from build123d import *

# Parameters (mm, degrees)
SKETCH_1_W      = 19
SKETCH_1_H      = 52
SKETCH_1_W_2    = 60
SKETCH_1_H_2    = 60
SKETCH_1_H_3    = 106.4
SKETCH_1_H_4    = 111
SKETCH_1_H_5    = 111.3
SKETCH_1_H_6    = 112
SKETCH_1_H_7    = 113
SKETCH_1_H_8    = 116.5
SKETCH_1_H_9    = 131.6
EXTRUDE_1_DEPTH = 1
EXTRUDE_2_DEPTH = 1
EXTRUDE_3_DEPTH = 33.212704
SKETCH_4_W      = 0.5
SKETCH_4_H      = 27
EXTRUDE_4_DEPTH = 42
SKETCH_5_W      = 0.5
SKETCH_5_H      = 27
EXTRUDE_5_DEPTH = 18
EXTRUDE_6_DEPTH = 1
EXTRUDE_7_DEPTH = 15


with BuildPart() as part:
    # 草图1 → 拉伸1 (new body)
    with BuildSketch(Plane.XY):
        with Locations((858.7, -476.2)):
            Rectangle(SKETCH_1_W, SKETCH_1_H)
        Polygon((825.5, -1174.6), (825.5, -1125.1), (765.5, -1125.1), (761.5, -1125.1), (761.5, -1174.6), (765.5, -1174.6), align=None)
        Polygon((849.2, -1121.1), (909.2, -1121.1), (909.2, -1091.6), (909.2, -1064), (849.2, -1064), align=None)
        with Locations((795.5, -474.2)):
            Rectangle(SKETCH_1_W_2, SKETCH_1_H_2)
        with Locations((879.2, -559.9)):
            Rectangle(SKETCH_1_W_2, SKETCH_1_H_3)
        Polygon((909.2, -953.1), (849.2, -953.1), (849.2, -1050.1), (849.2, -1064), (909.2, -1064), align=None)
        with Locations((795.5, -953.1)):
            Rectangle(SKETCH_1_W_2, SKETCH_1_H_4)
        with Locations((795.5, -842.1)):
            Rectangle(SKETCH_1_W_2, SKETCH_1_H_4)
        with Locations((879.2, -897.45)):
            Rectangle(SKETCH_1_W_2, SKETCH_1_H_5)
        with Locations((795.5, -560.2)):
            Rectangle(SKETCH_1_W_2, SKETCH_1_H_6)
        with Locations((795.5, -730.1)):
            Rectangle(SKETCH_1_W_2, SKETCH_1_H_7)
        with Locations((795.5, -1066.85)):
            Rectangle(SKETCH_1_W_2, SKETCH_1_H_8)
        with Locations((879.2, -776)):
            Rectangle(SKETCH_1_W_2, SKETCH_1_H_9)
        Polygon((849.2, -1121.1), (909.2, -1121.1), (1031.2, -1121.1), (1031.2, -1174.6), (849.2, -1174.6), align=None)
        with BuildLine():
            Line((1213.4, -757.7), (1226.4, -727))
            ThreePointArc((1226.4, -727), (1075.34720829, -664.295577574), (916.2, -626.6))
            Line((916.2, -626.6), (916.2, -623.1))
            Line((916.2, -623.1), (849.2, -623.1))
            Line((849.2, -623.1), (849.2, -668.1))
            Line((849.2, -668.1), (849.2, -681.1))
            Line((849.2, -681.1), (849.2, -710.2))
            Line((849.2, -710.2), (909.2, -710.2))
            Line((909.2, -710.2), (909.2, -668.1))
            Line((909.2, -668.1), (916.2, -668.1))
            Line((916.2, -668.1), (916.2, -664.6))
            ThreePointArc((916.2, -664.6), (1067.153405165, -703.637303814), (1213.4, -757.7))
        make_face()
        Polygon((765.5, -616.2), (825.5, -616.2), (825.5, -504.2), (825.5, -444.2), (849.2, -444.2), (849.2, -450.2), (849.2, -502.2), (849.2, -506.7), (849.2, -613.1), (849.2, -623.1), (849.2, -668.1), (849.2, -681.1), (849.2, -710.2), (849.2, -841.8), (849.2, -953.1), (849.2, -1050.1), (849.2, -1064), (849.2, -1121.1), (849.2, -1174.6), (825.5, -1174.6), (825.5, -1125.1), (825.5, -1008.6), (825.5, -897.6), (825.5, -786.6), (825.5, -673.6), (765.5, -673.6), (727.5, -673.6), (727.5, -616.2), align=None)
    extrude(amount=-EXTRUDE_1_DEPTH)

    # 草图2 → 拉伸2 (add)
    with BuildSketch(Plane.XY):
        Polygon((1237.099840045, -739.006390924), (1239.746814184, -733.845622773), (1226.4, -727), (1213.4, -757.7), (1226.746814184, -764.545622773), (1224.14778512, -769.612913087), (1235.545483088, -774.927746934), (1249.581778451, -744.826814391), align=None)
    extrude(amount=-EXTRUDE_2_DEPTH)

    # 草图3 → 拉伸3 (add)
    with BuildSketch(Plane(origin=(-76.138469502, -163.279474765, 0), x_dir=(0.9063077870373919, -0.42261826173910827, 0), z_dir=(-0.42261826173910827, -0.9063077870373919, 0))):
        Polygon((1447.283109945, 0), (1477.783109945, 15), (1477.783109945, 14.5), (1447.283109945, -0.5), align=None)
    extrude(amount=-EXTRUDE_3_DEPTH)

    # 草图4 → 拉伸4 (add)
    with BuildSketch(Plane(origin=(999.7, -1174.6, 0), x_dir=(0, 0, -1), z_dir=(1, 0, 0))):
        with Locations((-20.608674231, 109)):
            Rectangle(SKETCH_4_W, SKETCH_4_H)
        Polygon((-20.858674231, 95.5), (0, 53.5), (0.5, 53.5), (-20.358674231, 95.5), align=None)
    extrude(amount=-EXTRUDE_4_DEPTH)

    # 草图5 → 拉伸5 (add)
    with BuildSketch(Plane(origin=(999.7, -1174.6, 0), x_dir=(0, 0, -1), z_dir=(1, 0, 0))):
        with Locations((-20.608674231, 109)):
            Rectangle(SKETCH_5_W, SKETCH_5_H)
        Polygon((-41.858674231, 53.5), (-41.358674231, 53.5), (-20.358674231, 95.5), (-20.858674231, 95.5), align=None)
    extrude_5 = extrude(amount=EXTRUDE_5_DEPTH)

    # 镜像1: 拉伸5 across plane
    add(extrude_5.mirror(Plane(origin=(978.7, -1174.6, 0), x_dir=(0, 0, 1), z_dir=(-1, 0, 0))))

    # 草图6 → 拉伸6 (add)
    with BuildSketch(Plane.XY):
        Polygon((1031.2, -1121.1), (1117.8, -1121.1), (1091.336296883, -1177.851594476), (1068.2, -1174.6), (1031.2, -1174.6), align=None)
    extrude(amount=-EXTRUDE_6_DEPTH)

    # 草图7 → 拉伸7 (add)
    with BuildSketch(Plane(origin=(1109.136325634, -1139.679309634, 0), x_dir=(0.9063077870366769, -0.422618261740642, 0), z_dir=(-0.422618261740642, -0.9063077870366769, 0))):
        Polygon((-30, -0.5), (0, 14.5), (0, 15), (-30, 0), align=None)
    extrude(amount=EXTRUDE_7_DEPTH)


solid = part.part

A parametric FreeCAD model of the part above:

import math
import FreeCAD as App
import Part
import Sketcher

V = App.Vector
Q = App.Units.Quantity


def add_polygon(sketch, points):
    """Adds a closed chain of lines whose ends are joined by coincident constraints."""
    first, n = sketch.GeometryCount, len(points)
    for a, b in zip(points, points[1:] + points[:1]):
        sketch.addGeometry(Part.LineSegment(App.Vector(*a, 0), App.Vector(*b, 0)), False)
    for i in range(n):
        sketch.addConstraint(Sketcher.Constraint("Coincident", first + i, 2, first + (i + 1) % n, 1))

doc = App.newDocument("Part")
body = doc.addObject("PartDesign::Body", "Body")

# Sketch on XY plane
sketch1 = body.newObject("Sketcher::SketchObject", "Sketch")
sketch1.AttachmentSupport = (doc.getObject("XY_Plane"), [""])
sketch1.MapMode = "FlatFace"
sketch1.addGeometry([
    Part.LineSegment(V(849.2, -502.2, 0), V(868.2, -502.2, 0)),  # 0
    Part.LineSegment(V(868.2, -502.2, 0), V(868.2, -450.2, 0)),  # 1
    Part.LineSegment(V(868.2, -450.2, 0), V(849.2, -450.2, 0)),  # 2
    Part.LineSegment(V(849.2, -450.2, 0), V(849.2, -444.2, 0)),  # 3
    Part.LineSegment(V(849.2, -444.2, 0), V(765.5, -444.2, 0)),  # 4
    Part.LineSegment(V(765.5, -444.2, 0), V(765.5, -616.2, 0)),  # 5
    Part.LineSegment(V(765.5, -616.2, 0), V(727.5, -616.2, 0)),  # 6
    Part.LineSegment(V(727.5, -616.2, 0), V(727.5, -673.6, 0)),  # 7
    Part.LineSegment(V(727.5, -673.6, 0), V(765.5, -673.6, 0)),  # 8
    Part.LineSegment(V(765.5, -673.6, 0), V(765.5, -1125.1, 0)),  # 9
    Part.LineSegment(V(765.5, -1125.1, 0), V(761.5, -1125.1, 0)),  # 10
    Part.LineSegment(V(761.5, -1125.1, 0), V(761.5, -1174.6, 0)),  # 11
    Part.LineSegment(V(761.5, -1174.6, 0), V(1031.2, -1174.6, 0)),  # 12
    Part.LineSegment(V(1031.2, -1174.6, 0), V(1031.2, -1121.1, 0)),  # 13
    Part.LineSegment(V(1031.2, -1121.1, 0), V(909.2, -1121.1, 0)),  # 14
    Part.LineSegment(V(909.2, -1121.1, 0), V(909.2, -668.1, 0)),  # 15
    Part.LineSegment(V(909.2, -668.1, 0), V(916.2, -668.1, 0)),  # 16
    Part.LineSegment(V(916.2, -668.1, 0), V(916.2, -664.6, 0)),  # 17
    Part.ArcOfCircle(Part.Circle(V(605.6, -2177, 0), V(0, 0, 1), 1544), math.radians(66.82), math.radians(78.39)),  # 18
    Part.LineSegment(V(1213.4, -757.7, 0), V(1226.4, -727, 0)),  # 19
    Part.ArcOfCircle(Part.Circle(V(762, -1632.4, 0), V(0, 0, 1), 1017.6), math.radians(62.85), math.radians(81.28)),  # 20
    Part.LineSegment(V(916.2, -626.6, 0), V(916.2, -623.1, 0)),  # 21
    Part.LineSegment(V(916.2, -623.1, 0), V(849.2, -623.1, 0)),  # 22
    Part.LineSegment(V(849.2, -623.1, 0), V(849.2, -613.1, 0)),  # 23
    Part.LineSegment(V(849.2, -613.1, 0), V(909.2, -613.1, 0)),  # 24
    Part.LineSegment(V(909.2, -613.1, 0), V(909.2, -506.7, 0)),  # 25
    Part.LineSegment(V(909.2, -506.7, 0), V(849.2, -506.7, 0)),  # 26
    Part.LineSegment(V(849.2, -506.7, 0), V(849.2, -502.2, 0)),  # 27
], False)
sketch1.addConstraint([
    Sketcher.Constraint("Coincident", 0, 2, 1, 1),
    Sketcher.Constraint("Coincident", 1, 2, 2, 1),
    Sketcher.Constraint("Coincident", 2, 2, 3, 1),
    Sketcher.Constraint("Coincident", 3, 2, 4, 1),
    Sketcher.Constraint("Coincident", 4, 2, 5, 1),
    Sketcher.Constraint("Coincident", 5, 2, 6, 1),
    Sketcher.Constraint("Coincident", 6, 2, 7, 1),
    Sketcher.Constraint("Coincident", 7, 2, 8, 1),
    Sketcher.Constraint("Coincident", 8, 2, 9, 1),
    Sketcher.Constraint("Coincident", 9, 2, 10, 1),
    Sketcher.Constraint("Coincident", 10, 2, 11, 1),
    Sketcher.Constraint("Coincident", 11, 2, 12, 1),
    Sketcher.Constraint("Coincident", 12, 2, 13, 1),
    Sketcher.Constraint("Coincident", 13, 2, 14, 1),
    Sketcher.Constraint("Coincident", 14, 2, 15, 1),
    Sketcher.Constraint("Coincident", 15, 2, 16, 1),
    Sketcher.Constraint("Coincident", 16, 2, 17, 1),
    Sketcher.Constraint("Coincident", 17, 2, 18, 2),
    Sketcher.Constraint("Coincident", 18, 1, 19, 1),
    Sketcher.Constraint("Coincident", 19, 2, 20, 1),
    Sketcher.Constraint("Coincident", 20, 2, 21, 1),
    Sketcher.Constraint("Coincident", 21, 2, 22, 1),
    Sketcher.Constraint("Coincident", 22, 2, 23, 1),
    Sketcher.Constraint("Coincident", 23, 2, 24, 1),
    Sketcher.Constraint("Coincident", 24, 2, 25, 1),
    Sketcher.Constraint("Coincident", 25, 2, 26, 1),
    Sketcher.Constraint("Coincident", 26, 2, 27, 1),
    Sketcher.Constraint("Coincident", 27, 2, 0, 1),
    Sketcher.Constraint("Horizontal", 0),
    Sketcher.Constraint("Vertical", 1),
    Sketcher.Constraint("Horizontal", 2),
    Sketcher.Constraint("Vertical", 3),
    Sketcher.Constraint("Horizontal", 4),
    Sketcher.Constraint("Vertical", 5),
    Sketcher.Constraint("Horizontal", 6),
    Sketcher.Constraint("Vertical", 7),
    Sketcher.Constraint("Horizontal", 8),
    Sketcher.Constraint("Vertical", 9),
    Sketcher.Constraint("Horizontal", 10),
    Sketcher.Constraint("Vertical", 11),
    Sketcher.Constraint("Horizontal", 12),
    Sketcher.Constraint("Vertical", 13),
    Sketcher.Constraint("Horizontal", 14),
    Sketcher.Constraint("Vertical", 15),
    Sketcher.Constraint("Horizontal", 16),
    Sketcher.Constraint("Vertical", 17),
    Sketcher.Constraint("Vertical", 21),
    Sketcher.Constraint("Horizontal", 22),
    Sketcher.Constraint("Vertical", 23),
    Sketcher.Constraint("Horizontal", 24),
    Sketcher.Constraint("Vertical", 25),
    Sketcher.Constraint("Horizontal", 26),
    Sketcher.Constraint("Vertical", 27),
    Sketcher.Constraint("Vertical", 5, 2, 8, 2),
    Sketcher.Constraint("Vertical", 3, 2, 22, 2),
    Sketcher.Constraint("Vertical", 15, 2, 24, 2),
    Sketcher.Constraint("Vertical", 23, 2, 26, 2),
    Sketcher.Constraint("Equal", 17, 21),
    Sketcher.Constraint("Radius", 18, 1544.0),
    Sketcher.Constraint("Radius", 20, 1017.6),
    Sketcher.Constraint("DistanceX", 0, 1, 0, 2, 19.0),
    Sketcher.Constraint("DistanceX", 6, 2, 6, 1, 38.0),
    Sketcher.Constraint("DistanceX", 10, 2, 10, 1, 4.0),
    Sketcher.Constraint("DistanceX", 14, 2, 14, 1, 122.0),
    Sketcher.Constraint("DistanceX", 16, 1, 16, 2, 7.0),
    Sketcher.Constraint("DistanceX", 22, 2, 22, 1, 67.0),
    Sketcher.Constraint("DistanceX", 24, 1, 24, 2, 60.0),
    Sketcher.Constraint("DistanceY", 1, 1, 1, 2, 52.0),
    Sketcher.Constraint("DistanceY", 3, 1, 3, 2, 6.0),
    Sketcher.Constraint("DistanceY", 5, 2, 5, 1, 172.0),
    Sketcher.Constraint("DistanceY", 15, 1, 15, 2, 453.0),
    Sketcher.Constraint("DistanceY", 23, 1, 23, 2, 10.0),
    Sketcher.Constraint("DistanceX", 4, 2, 4, 1, 83.7),
    Sketcher.Constraint("DistanceY", 7, 2, 7, 1, 57.4),
    Sketcher.Constraint("DistanceY", 9, 2, 9, 1, 451.5),
    Sketcher.Constraint("DistanceY", 11, 2, 11, 1, 49.5),
    Sketcher.Constraint("DistanceY", 13, 1, 13, 2, 53.5),
    Sketcher.Constraint("DistanceY", 17, 1, 17, 2, 3.5),
    Sketcher.Constraint("DistanceY", 25, 1, 25, 2, 106.4),
    Sketcher.Constraint("DistanceY", 27, 1, 27, 2, 4.5),
    Sketcher.Constraint("DistanceY", 19, 2, -1, 1, 727.0),
    Sketcher.Constraint("DistanceX", -1, 1, 0, 2, 868.2),
    Sketcher.Constraint("DistanceY", 0, 2, -1, 1, 502.2),
    Sketcher.Constraint("DistanceX", -1, 1, 19, 2, 1226.4),
    Sketcher.Constraint("DistanceY", 18, 3, -1, 1, 2177.036471),
    Sketcher.Constraint("Distance", 19, 33.339016),
])
pad1 = body.newObject("PartDesign::Pad", "Pad")
pad1.Profile = sketch1
pad1.Length = 1
pad1.Reversed = True

# Sketch on XY plane
sketch2 = body.newObject("Sketcher::SketchObject", "Sketch001")
sketch2.AttachmentSupport = (doc.getObject("XY_Plane"), [""])
sketch2.MapMode = "FlatFace"
add_polygon(sketch2, [(1237, -739), (1240, -734), (1226, -727), (1213, -758), (1227, -765), (1224, -770), (1236, -775), (1250, -745)])  # lines 0-7
sketch2.addConstraint([
    Sketcher.Constraint("Perpendicular", 0, 1),
    Sketcher.Constraint("Parallel", 1, 3),
    Sketcher.Constraint("Perpendicular", 3, 4),
    Sketcher.Constraint("Perpendicular", 5, 6),
    Sketcher.Constraint("Perpendicular", 6, 7),
    Sketcher.Constraint("Equal", 1, 3),
    Sketcher.Constraint("Angle", 5, Q("-25 deg")),
    Sketcher.Constraint("Distance", 1, 15.0),
    Sketcher.Constraint("DistanceY", 1, 2, -1, 1, 727.0),
    Sketcher.Constraint("DistanceX", 2, 2, 1, 2, 13.0),
    Sketcher.Constraint("Distance", 0, 5.8),
    Sketcher.Constraint("DistanceX", -1, 1, 1, 2, 1226.4),
    Sketcher.Constraint("DistanceY", 2, 2, -1, 1, 757.7),
    Sketcher.Constraint("DistanceY", 4, 2, 6, 2, 24.786099),
    Sketcher.Constraint("Distance", 5, 12.575968),
    Sketcher.Constraint("DistanceX", -1, 1, 6, 2, 1249.581778),
])
pad2 = body.newObject("PartDesign::Pad", "Pad001")
pad2.Profile = sketch2
pad2.Length = 1
pad2.Reversed = True

# Sketch on an angled plane
sketch3 = body.newObject("Sketcher::SketchObject", "Sketch002")
sketch3.Placement = App.Placement(V(-76.13847, -163.279475, 0), App.Rotation(V(0.906307787, -0.422618262, 0), V(0, 0, 1), V(-0.422618262, -0.906307787, 0), "ZXY"))
add_polygon(sketch3, [(1477.8, 15), (1447.3, 0), (1447.3, -0.5), (1477.8, 14.5)])  # lines 0-3
sketch3.addConstraint([
    Sketcher.Constraint("Vertical", 1),
    Sketcher.Constraint("Vertical", 3),
    Sketcher.Constraint("PointOnObject", 0, 2, -1),
    Sketcher.Constraint("Parallel", 0, 2),
    Sketcher.Constraint("DistanceY", 1, 2, 1, 1, 0.5),
    Sketcher.Constraint("DistanceY", -1, 1, 3, 2, 15.0),
    Sketcher.Constraint("DistanceX", 0, 2, 2, 2, 30.5),
    Sketcher.Constraint("DistanceX", -1, 1, 0, 2, 1447.28311),
])
pad3 = body.newObject("PartDesign::Pad", "Pad002")
pad3.Profile = sketch3
pad3.Length = 33.212704
pad3.Reversed = True

# Sketch on YZ plane
sketch4 = body.newObject("Sketcher::SketchObject", "Sketch003")
sketch4.AttachmentSupport = (doc.getObject("YZ_Plane"), [""])
sketch4.MapMode = "FlatFace"
sketch4.AttachmentOffset = App.Placement(V(0, 0, 999.7), App.Rotation())
add_polygon(sketch4, [(-1052.1, 20.9), (-1079.1, 20.9), (-1121.1, 0), (-1121.1, -0.5), (-1079.1, 20.4), (-1052.1, 20.4)])  # lines 0-5
sketch4.addConstraint([
    Sketcher.Constraint("Horizontal", 0),
    Sketcher.Constraint("Vertical", 2),
    Sketcher.Constraint("Horizontal", 4),
    Sketcher.Constraint("Vertical", 5),
    Sketcher.Constraint("PointOnObject", 1, 2, -1),
    Sketcher.Constraint("Parallel", 1, 3),
    Sketcher.Constraint("Vertical", 0, 2, 3, 2),
    Sketcher.Constraint("DistanceX", 0, 2, 0, 1, 27.0),
    Sketcher.Constraint("DistanceY", 2, 2, 2, 1, 0.5),
    Sketcher.Constraint("DistanceX", 1, 2, 0, 2, 42.0),
    Sketcher.Constraint("DistanceX", 0, 2, -1, 1, 1079.1),
    Sketcher.Constraint("Distance", 1, 46.894395),
])
pad4 = body.newObject("PartDesign::Pad", "Pad003")
pad4.Profile = sketch4
pad4.Length = 42
pad4.Reversed = True

# Sketch on YZ plane
sketch5 = body.newObject("Sketcher::SketchObject", "Sketch004")
sketch5.AttachmentSupport = (doc.getObject("YZ_Plane"), [""])
sketch5.MapMode = "FlatFace"
sketch5.AttachmentOffset = App.Placement(V(0, 0, 999.7), App.Rotation())
add_polygon(sketch5, [(-1052.1, 20.9), (-1079.1, 20.9), (-1121.1, 41.9), (-1121.1, 41.4), (-1079.1, 20.4), (-1052.1, 20.4)])  # lines 0-5
sketch5.addConstraint([
    Sketcher.Constraint("Horizontal", 0),
    Sketcher.Constraint("Vertical", 2),
    Sketcher.Constraint("Horizontal", 4),
    Sketcher.Constraint("Vertical", 5),
    Sketcher.Constraint("Parallel", 1, 3),
    Sketcher.Constraint("Vertical", 0, 2, 3, 2),
    Sketcher.Constraint("DistanceX", 0, 2, 0, 1, 27.0),
    Sketcher.Constraint("DistanceY", 2, 2, 2, 1, 0.5),
    Sketcher.Constraint("DistanceX", 1, 2, 0, 2, 42.0),
    Sketcher.Constraint("DistanceY", 0, 2, 1, 2, 21.0),
    Sketcher.Constraint("DistanceX", 0, 2, -1, 1, 1079.1),
    Sketcher.Constraint("DistanceY", -1, 1, 0, 2, 20.858674),
])
pad5 = body.newObject("PartDesign::Pad", "Pad004")
pad5.Profile = sketch5
pad5.Length = 18
doc.recompute()

datumplane = body.newObject("PartDesign::Plane", "DatumPlane")
datumplane.AttachmentSupport = (doc.getObject("YZ_Plane"), [""])
datumplane.MapMode = "FlatFace"
datumplane.AttachmentOffset = App.Placement(V(0, 0, 978.7), App.Rotation())
mirrored = body.newObject("PartDesign::Mirrored", "Mirrored")
mirrored.Originals = [pad5]
mirrored.MirrorPlane = (datumplane, [""])
body.Tip = mirrored

# Sketch on XY plane
sketch6 = body.newObject("Sketcher::SketchObject", "Sketch005")
sketch6.AttachmentSupport = (doc.getObject("XY_Plane"), [""])
sketch6.MapMode = "FlatFace"
add_polygon(sketch6, [(1118, -1121), (1031, -1121), (1031, -1175), (1068, -1175), (1091, -1178)])  # lines 0-4
sketch6.addConstraint([
    Sketcher.Constraint("Horizontal", 0),
    Sketcher.Constraint("Vertical", 1),
    Sketcher.Constraint("Horizontal", 2),
    Sketcher.Constraint("DistanceX", 2, 1, 2, 2, 37.0),
    Sketcher.Constraint("Angle", 3, Q("-8 deg")),
    Sketcher.Constraint("Angle", 4, Q("65 deg")),
    Sketcher.Constraint("DistanceX", 0, 2, 0, 1, 86.6),
    Sketcher.Constraint("DistanceY", 1, 2, 1, 1, 53.5),
    Sketcher.Constraint("DistanceX", -1, 1, 0, 2, 1031.2),
    Sketcher.Constraint("DistanceY", 0, 2, -1, 1, 1121.1),
])
pad6 = body.newObject("PartDesign::Pad", "Pad005")
pad6.Profile = sketch6
pad6.Length = 1
pad6.Reversed = True

# Sketch on an angled plane
sketch7 = body.newObject("Sketcher::SketchObject", "Sketch006")
sketch7.Placement = App.Placement(V(1109.136326, -1139.67931, 0), App.Rotation(V(0.906307787, -0.422618262, 0), V(0, 0, 1), V(-0.422618262, -0.906307787, 0), "ZXY"))
add_polygon(sketch7, [(-30, -0.5), (0, 14.5), (0, 15), (-30, 0)])  # lines 0-3
sketch7.addConstraint([
    Sketcher.Constraint("Vertical", 1),
    Sketcher.Constraint("Vertical", 3),
    Sketcher.Constraint("PointOnObject", 0, 2, -2),
    Sketcher.Constraint("PointOnObject", 2, 2, -1),
    Sketcher.Constraint("Parallel", 0, 2),
    Sketcher.Constraint("DistanceY", 1, 1, 1, 2, 0.5),
    Sketcher.Constraint("DistanceY", -1, 1, 1, 2, 15.0),
    Sketcher.Constraint("DistanceX", 2, 2, -1, 1, 30.0),
])
pad7 = body.newObject("PartDesign::Pad", "Pad006")
pad7.Profile = sketch7
pad7.Length = 15

doc.recompute()
